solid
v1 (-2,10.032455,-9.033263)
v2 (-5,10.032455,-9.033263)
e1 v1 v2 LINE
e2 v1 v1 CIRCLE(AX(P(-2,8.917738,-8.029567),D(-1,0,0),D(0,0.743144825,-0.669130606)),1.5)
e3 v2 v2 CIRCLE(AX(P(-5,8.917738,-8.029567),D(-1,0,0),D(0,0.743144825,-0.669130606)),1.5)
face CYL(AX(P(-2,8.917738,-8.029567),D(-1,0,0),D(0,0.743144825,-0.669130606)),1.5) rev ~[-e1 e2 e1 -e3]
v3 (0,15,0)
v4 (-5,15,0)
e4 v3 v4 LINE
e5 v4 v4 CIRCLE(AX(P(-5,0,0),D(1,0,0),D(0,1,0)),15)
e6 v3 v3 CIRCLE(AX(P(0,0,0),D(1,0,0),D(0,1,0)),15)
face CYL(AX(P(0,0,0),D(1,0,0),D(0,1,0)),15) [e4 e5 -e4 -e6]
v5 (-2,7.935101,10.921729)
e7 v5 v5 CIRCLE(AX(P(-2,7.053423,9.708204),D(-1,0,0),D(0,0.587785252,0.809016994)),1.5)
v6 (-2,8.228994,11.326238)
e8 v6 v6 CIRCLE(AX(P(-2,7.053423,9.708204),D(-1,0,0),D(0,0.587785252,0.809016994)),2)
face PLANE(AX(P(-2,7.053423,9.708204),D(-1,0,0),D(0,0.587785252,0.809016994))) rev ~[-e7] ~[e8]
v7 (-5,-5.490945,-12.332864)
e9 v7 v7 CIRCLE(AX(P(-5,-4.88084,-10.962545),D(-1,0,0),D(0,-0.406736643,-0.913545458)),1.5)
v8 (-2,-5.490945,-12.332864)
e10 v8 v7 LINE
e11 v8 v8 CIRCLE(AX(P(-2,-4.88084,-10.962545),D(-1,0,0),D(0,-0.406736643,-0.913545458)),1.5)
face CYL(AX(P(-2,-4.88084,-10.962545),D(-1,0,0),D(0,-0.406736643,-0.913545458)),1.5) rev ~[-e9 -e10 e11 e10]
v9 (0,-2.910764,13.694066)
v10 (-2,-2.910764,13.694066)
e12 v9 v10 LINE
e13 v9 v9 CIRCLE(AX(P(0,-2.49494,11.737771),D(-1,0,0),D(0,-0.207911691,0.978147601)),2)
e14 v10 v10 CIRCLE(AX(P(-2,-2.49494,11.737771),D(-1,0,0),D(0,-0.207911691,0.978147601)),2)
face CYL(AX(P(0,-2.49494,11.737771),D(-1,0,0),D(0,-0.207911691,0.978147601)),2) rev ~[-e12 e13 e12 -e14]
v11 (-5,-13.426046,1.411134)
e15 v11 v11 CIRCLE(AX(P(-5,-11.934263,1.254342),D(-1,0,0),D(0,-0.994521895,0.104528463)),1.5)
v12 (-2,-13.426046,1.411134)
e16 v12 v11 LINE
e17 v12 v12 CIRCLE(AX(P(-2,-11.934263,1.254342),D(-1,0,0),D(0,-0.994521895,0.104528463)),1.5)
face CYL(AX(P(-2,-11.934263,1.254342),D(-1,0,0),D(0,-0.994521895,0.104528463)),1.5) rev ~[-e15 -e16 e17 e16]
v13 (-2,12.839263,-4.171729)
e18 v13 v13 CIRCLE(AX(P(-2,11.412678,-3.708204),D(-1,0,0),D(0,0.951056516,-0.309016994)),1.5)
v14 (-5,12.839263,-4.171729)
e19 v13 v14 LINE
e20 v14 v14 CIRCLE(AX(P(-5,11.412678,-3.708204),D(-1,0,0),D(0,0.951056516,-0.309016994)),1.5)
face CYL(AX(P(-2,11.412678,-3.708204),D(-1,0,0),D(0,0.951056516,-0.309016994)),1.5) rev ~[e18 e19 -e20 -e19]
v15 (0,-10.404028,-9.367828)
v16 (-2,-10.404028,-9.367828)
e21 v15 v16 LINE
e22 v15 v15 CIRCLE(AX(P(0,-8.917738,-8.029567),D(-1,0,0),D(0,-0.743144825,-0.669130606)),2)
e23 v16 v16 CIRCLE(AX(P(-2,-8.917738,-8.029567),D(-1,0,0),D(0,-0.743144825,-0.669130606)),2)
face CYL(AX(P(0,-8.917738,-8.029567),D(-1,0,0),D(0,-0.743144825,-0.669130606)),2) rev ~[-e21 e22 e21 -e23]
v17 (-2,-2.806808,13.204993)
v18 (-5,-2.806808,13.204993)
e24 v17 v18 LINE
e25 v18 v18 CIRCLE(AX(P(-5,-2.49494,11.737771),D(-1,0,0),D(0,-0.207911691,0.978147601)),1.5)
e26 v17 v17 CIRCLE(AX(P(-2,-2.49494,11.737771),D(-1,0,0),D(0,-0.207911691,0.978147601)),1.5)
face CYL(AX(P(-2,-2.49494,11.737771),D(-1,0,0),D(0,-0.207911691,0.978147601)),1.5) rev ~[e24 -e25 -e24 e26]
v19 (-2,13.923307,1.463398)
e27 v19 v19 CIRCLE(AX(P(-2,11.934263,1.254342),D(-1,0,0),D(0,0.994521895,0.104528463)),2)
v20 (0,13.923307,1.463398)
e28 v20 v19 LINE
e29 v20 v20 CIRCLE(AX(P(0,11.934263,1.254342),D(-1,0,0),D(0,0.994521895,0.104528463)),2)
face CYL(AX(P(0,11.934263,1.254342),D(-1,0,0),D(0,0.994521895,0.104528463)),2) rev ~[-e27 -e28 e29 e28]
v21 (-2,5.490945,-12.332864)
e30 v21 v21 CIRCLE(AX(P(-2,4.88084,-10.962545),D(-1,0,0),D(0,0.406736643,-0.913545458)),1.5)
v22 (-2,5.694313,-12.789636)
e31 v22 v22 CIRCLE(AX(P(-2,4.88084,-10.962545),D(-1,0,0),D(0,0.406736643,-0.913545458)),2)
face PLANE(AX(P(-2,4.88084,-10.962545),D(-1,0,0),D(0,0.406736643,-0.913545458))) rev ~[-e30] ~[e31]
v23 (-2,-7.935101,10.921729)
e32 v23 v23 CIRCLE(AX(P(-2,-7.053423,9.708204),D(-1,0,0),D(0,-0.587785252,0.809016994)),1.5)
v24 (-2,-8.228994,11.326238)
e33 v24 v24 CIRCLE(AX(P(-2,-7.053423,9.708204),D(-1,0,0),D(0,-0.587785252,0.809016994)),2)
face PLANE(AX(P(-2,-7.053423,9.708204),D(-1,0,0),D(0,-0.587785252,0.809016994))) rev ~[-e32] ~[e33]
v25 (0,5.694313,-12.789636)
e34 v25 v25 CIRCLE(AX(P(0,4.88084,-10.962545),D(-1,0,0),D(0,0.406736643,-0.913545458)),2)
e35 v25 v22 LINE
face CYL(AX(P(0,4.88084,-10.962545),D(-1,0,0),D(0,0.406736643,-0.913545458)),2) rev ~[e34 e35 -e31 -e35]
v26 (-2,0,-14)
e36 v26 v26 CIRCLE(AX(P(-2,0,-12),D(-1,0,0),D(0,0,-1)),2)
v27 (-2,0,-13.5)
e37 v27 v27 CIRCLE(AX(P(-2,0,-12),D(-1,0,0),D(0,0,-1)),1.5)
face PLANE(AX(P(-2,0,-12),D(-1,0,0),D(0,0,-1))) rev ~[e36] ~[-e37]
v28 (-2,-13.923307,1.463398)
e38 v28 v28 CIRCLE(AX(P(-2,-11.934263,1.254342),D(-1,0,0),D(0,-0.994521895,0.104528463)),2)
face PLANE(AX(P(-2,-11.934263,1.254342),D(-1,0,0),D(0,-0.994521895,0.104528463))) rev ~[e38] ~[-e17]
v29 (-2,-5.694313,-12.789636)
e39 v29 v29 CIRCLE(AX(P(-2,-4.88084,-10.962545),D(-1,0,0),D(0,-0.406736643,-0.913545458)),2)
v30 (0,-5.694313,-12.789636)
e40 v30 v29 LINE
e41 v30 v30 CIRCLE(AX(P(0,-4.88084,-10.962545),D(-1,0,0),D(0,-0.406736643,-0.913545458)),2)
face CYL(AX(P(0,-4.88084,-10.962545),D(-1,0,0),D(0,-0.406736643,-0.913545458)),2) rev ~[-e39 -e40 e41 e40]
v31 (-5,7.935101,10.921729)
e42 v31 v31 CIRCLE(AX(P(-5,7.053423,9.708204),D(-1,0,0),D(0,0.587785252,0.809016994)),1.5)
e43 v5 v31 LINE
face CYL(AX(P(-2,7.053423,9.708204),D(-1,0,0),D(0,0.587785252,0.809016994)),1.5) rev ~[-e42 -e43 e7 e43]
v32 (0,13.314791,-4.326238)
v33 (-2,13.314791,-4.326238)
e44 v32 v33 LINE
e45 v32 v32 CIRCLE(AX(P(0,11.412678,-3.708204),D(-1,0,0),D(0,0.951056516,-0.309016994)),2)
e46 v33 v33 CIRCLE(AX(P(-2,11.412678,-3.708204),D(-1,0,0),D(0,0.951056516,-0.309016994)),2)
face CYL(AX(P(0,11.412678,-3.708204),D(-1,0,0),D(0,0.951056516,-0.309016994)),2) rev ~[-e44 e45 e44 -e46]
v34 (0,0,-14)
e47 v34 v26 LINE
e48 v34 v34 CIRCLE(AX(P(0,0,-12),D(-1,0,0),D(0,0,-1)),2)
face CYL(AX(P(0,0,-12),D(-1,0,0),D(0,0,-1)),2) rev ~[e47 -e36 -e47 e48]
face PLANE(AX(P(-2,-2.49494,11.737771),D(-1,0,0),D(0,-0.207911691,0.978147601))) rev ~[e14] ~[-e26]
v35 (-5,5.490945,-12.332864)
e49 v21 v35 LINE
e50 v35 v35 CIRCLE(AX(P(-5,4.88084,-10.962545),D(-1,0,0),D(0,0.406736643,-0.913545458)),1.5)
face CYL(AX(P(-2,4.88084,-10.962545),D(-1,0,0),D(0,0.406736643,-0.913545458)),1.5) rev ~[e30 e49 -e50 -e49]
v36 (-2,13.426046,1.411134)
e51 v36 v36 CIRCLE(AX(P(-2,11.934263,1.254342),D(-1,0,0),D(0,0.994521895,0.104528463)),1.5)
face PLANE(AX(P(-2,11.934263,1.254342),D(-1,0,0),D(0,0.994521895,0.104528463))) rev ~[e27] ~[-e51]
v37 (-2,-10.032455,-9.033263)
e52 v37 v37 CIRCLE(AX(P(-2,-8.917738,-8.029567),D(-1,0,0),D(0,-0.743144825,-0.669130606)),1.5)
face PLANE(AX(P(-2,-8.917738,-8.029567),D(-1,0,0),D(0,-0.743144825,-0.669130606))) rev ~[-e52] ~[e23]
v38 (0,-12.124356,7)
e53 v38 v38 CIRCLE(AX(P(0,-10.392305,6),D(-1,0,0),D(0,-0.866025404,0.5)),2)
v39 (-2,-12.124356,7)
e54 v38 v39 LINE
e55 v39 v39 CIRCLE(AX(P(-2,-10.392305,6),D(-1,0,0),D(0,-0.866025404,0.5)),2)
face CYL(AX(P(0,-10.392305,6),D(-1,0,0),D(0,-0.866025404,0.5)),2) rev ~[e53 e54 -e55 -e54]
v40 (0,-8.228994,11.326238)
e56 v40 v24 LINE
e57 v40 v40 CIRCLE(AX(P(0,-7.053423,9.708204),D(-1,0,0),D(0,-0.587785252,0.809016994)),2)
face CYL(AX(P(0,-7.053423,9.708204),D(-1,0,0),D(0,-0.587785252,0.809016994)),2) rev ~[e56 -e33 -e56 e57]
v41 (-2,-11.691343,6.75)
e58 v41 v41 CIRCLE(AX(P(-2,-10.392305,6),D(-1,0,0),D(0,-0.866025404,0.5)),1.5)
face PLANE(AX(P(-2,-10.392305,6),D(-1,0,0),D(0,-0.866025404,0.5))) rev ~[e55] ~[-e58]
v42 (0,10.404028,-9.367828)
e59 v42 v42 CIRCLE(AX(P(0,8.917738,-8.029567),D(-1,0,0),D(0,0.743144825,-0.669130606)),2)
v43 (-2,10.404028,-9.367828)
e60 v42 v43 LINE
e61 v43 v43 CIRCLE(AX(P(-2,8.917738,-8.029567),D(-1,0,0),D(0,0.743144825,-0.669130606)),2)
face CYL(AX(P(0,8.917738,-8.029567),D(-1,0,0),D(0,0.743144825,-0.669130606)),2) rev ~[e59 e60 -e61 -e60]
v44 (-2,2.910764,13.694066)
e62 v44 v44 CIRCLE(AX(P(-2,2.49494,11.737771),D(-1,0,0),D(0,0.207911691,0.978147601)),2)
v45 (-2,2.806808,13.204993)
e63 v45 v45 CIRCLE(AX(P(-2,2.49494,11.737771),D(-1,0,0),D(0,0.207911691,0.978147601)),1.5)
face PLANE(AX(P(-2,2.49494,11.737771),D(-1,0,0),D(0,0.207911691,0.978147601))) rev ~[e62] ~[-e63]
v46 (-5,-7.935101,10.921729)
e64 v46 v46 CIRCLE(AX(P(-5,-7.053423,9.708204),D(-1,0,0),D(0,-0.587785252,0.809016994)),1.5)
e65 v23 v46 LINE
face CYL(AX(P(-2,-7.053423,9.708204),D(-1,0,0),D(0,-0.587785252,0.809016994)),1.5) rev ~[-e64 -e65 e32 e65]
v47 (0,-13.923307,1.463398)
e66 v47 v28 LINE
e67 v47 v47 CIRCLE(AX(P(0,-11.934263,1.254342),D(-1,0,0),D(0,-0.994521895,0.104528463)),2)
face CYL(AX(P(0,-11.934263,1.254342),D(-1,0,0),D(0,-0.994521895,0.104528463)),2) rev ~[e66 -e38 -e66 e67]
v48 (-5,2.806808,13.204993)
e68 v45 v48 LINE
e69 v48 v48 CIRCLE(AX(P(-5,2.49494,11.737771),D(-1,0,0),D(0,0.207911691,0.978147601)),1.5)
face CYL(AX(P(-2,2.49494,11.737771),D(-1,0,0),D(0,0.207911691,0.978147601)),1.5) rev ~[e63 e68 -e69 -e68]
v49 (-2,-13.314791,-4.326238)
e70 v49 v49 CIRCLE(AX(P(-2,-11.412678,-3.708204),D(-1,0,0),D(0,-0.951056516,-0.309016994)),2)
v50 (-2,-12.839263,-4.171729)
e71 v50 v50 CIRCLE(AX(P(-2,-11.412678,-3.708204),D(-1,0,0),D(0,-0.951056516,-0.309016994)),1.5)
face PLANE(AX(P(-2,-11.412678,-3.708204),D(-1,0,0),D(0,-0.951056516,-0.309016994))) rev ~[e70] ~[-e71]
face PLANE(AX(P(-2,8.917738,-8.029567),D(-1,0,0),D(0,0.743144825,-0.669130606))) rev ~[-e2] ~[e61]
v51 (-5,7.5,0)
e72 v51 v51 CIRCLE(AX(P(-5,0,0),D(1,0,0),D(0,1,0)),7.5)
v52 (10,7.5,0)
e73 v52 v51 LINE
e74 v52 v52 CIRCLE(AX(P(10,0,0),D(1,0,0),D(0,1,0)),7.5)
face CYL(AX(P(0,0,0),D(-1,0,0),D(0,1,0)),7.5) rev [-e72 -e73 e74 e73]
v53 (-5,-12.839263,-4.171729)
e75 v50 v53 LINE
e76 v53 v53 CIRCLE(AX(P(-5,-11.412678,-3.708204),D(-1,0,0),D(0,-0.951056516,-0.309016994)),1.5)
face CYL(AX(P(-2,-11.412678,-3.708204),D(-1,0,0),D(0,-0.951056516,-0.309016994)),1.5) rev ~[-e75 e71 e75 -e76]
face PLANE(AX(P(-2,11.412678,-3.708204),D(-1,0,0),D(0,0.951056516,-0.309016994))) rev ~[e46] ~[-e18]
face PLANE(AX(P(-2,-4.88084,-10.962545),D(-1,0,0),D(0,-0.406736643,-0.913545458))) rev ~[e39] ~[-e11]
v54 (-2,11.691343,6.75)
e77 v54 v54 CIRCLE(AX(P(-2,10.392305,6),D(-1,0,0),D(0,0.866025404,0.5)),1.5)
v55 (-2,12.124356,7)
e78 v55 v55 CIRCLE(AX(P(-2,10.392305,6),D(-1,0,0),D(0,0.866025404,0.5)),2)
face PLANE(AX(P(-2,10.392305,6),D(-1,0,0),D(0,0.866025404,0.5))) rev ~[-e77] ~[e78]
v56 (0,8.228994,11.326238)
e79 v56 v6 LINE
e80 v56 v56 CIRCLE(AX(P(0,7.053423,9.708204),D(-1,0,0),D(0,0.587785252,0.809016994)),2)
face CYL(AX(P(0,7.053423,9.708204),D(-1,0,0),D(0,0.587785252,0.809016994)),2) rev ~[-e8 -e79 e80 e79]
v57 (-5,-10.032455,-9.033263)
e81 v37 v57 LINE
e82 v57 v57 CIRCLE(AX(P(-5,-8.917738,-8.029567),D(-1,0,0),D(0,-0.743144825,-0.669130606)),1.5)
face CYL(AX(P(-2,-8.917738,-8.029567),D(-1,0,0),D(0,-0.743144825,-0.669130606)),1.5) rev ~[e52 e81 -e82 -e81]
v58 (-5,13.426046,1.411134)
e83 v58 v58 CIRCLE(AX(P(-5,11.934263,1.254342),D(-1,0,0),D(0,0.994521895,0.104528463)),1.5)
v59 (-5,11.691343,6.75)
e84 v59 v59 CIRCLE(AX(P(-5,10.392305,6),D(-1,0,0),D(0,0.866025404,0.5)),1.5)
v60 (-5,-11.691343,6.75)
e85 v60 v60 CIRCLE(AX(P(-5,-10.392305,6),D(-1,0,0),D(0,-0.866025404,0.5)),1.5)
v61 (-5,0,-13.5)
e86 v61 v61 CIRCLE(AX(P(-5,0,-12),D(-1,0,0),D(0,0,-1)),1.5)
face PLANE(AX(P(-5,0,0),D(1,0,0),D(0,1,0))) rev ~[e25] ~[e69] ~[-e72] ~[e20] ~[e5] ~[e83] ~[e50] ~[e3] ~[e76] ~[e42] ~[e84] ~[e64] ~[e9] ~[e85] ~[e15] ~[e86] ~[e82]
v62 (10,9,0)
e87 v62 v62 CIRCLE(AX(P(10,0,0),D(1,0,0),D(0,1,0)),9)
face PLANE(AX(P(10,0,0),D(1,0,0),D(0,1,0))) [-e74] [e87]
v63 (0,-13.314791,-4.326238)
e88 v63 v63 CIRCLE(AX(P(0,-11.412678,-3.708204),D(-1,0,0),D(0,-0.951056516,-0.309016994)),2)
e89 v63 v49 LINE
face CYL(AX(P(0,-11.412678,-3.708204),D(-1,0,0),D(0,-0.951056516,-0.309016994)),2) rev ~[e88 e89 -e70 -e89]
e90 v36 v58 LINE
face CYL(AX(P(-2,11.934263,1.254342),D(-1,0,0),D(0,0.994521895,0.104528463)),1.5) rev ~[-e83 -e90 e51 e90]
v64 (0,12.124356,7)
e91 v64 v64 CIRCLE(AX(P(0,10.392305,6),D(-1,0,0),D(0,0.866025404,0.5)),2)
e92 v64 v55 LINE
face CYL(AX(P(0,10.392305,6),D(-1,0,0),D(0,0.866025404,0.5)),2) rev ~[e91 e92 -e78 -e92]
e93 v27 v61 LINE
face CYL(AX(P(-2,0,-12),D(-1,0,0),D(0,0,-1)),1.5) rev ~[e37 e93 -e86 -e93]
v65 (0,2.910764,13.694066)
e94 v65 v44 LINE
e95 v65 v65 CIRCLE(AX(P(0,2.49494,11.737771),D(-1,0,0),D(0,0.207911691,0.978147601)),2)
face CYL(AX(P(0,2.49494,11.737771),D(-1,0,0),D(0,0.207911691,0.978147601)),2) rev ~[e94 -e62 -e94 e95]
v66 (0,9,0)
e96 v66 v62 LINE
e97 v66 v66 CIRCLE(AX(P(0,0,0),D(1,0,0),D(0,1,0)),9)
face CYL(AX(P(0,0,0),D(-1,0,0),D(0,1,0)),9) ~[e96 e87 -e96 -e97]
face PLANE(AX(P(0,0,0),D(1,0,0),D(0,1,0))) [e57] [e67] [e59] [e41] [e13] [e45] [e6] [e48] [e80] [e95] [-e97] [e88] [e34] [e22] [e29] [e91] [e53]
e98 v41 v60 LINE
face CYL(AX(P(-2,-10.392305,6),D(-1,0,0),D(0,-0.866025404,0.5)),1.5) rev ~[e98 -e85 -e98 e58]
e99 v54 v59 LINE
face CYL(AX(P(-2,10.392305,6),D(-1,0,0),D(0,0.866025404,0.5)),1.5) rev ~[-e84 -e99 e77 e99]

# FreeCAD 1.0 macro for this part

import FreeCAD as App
import Part
import Sketcher
from FreeCAD import Vector
Q = App.Units.Quantity

doc = App.newDocument("Part")
body = doc.addObject("PartDesign::Body", "Body")

sketch1 = body.newObject("Sketcher::SketchObject", "Sketch")
sketch1.AttachmentSupport = (doc.getObject("YZ_Plane"), [""])
sketch1.MapMode = "FlatFace"
sketch1.addGeometry(Part.Circle(Vector(0, 0, 0), Vector(0, 0, 1), 15), False)
sketch1.addGeometry(Part.Circle(Vector(0, 0, 0), Vector(0, 0, 1), 7.5), False)
sketch1.addConstraint(Sketcher.Constraint("Coincident", 0, 3, -1, 1))
sketch1.addConstraint(Sketcher.Constraint("Coincident", 1, 3, -1, 1))
sketch1.addConstraint(Sketcher.Constraint("Diameter", 0, Q("30 mm")))
sketch1.addConstraint(Sketcher.Constraint("Diameter", 1, Q("15 mm")))
pad1 = body.newObject("PartDesign::Pad", "Pad")
pad1.Profile = sketch1
pad1.Length = 5
pad1.Reversed = True

sketch2 = body.newObject("Sketcher::SketchObject", "Sketch001")
sketch2.AttachmentSupport = (doc.getObject("YZ_Plane"), [""])
sketch2.MapMode = "FlatFace"
sketch2.addGeometry(Part.Circle(Vector(0, 0, 0), Vector(0, 0, 1), 9), False)
sketch2.addGeometry(Part.Circle(Vector(0, 0, 0), Vector(0, 0, 1), 7.5), False)
sketch2.addConstraint(Sketcher.Constraint("Coincident", 0, 3, -1, 1))
sketch2.addConstraint(Sketcher.Constraint("Coincident", 1, 3, -1, 1))
sketch2.addConstraint(Sketcher.Constraint("Diameter", 0, Q("18 mm")))
sketch2.addConstraint(Sketcher.Constraint("Diameter", 1, Q("15 mm")))
pad2 = body.newObject("PartDesign::Pad", "Pad001")
pad2.Profile = sketch2
pad2.Length = 10

sketch3 = body.newObject("Sketcher::SketchObject", "Sketch002")
sketch3.AttachmentSupport = (doc.getObject("YZ_Plane"), [""])
sketch3.MapMode = "FlatFace"
sketch3.addGeometry(Part.Circle(Vector(0, -12, 0), Vector(0, 0, 1), 1.5), False)
sketch3.addConstraint(Sketcher.Constraint("PointOnObject", 0, 3, -2))
sketch3.addConstraint(Sketcher.Constraint("Diameter", 0, Q("3 mm")))
sketch3.addConstraint(Sketcher.Constraint("DistanceY", 0, 3, -1, 1, Q("12 mm")))
doc.recompute()
hole = body.newObject("PartDesign::Hole", "Hole")
hole.Profile = sketch3
hole.ThreadType = "None"
hole.Diameter = 3
hole.DepthType = "ThroughAll"
hole.HoleCutType = "Counterbore"
hole.HoleCutDiameter = 4
hole.HoleCutDepth = 2
doc.recompute()

polarpattern = body.newObject("PartDesign::PolarPattern", "PolarPattern")
polarpattern.Originals = [hole]
polarpattern.Axis = (doc.getObject("X_Axis"), [""])
polarpattern.Angle = 360
polarpattern.Occurrences = 15
body.Tip = polarpattern

doc.recompute()
